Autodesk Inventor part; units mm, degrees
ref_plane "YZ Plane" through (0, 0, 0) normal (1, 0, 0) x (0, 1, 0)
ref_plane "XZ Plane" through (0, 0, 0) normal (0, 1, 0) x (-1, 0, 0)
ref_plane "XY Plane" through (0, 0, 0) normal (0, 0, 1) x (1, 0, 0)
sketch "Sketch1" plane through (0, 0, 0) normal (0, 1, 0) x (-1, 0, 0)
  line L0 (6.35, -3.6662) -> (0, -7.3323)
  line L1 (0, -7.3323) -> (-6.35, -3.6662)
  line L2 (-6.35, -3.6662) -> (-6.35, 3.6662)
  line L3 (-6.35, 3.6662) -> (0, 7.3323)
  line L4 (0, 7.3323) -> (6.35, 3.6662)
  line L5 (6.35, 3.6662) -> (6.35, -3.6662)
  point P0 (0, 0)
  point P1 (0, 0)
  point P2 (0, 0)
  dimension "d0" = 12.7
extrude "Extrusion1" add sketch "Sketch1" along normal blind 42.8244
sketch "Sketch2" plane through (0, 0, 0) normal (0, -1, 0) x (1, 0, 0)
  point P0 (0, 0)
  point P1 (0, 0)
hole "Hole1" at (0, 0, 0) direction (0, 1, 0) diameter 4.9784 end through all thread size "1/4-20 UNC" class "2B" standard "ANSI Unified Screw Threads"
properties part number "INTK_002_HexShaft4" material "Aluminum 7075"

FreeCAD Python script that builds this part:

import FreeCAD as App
import Part
import Sketcher
Q = App.Units.Quantity

doc = App.newDocument("Part")
body = doc.addObject("PartDesign::Body", "Body")

# Sketch on XZ plane
sketch1 = doc.addObject("Sketcher::SketchObject", "Sketch")
body.addObject(sketch1)
sketch1.AttachmentSupport = (doc.XZ_Plane, [""])
sketch1.MapMode = "FlatFace"
sketch1.addGeometry([
    Part.LineSegment(App.Vector(0, -7, 0), App.Vector(-6, -4, 0)),  # 0
    Part.LineSegment(App.Vector(-6, -4, 0), App.Vector(-6, 4, 0)),  # 1
    Part.LineSegment(App.Vector(-6, 4, 0), App.Vector(0, 7, 0)),  # 2
    Part.LineSegment(App.Vector(0, 7, 0), App.Vector(6, 4, 0)),  # 3
    Part.LineSegment(App.Vector(6, 4, 0), App.Vector(6, -4, 0)),  # 4
    Part.LineSegment(App.Vector(6, -4, 0), App.Vector(0, -7, 0)),  # 5
], False)
sketch1.addConstraint([
    Sketcher.Constraint("Coincident", 0, 2, 1, 1),
    Sketcher.Constraint("Coincident", 1, 2, 2, 1),
    Sketcher.Constraint("Coincident", 2, 2, 3, 1),
    Sketcher.Constraint("Coincident", 3, 2, 4, 1),
    Sketcher.Constraint("Coincident", 4, 2, 5, 1),
    Sketcher.Constraint("Coincident", 5, 2, 0, 1),
    Sketcher.Constraint("Vertical", 1),
    Sketcher.Constraint("Vertical", 4),
    Sketcher.Constraint("Symmetric", 0, 2, 3, 2, -1, 1),
    Sketcher.Constraint("Symmetric", 2, 2, 5, 2, -1, 1),
    Sketcher.Constraint("PointOnObject", 2, 2, -2),
    Sketcher.Constraint("Parallel", 2, 5),
    Sketcher.Constraint("Horizontal", 1, 2, 3, 2),
    Sketcher.Constraint("DistanceX", 1, 2, 3, 2, Q("0.5 in")),
    Sketcher.Constraint("Angle", 0, Q("150.0005 deg")),
    Sketcher.Constraint("DistanceY", 0, 2, 2, 2, Q("0.433 in")),
])
pad1 = doc.addObject("PartDesign::Pad", "Pad")
body.addObject(pad1)
pad1.Profile = sketch1
pad1.Length = Q("1.686 in")
pad1.Reversed = True

# Sketch on XZ plane
sketch2 = doc.addObject("Sketcher::SketchObject", "Sketch001")
body.addObject(sketch2)
sketch2.AttachmentSupport = (doc.XZ_Plane, [""])
sketch2.MapMode = "FlatFace"
sketch2.addGeometry(Part.Circle(App.Vector(0, 0, 0), App.Vector(0, 0, 1), 2.5), False)
sketch2.addConstraint([
    Sketcher.Constraint("Coincident", 0, 3, -1, 1),
    Sketcher.Constraint("Diameter", 0, Q("0.196 in")),
])
doc.recompute()
hole = doc.addObject("PartDesign::Hole", "Hole")
body.addObject(hole)
hole.Profile = sketch2
hole.ThreadType = "None"
hole.Diameter = Q("0.196 in")
hole.DepthType = "ThroughAll"

doc.recompute()
